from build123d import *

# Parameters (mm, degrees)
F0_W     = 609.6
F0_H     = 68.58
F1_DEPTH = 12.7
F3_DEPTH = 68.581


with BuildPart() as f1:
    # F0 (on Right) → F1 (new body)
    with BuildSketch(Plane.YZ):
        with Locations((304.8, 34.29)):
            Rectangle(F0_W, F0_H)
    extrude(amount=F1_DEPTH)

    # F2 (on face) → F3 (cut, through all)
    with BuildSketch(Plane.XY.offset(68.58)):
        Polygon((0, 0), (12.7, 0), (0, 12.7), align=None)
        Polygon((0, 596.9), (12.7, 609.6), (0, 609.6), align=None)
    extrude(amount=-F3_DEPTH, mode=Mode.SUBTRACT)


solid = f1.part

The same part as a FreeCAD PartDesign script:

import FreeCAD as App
import Part
import Sketcher
from FreeCAD import Vector
Q = App.Units.Quantity

doc = App.newDocument("Part")
body = doc.addObject("PartDesign::Body", "Body")

sketch1 = body.newObject("Sketcher::SketchObject", "Sketch")
sketch1.AttachmentSupport = (doc.getObject("YZ_Plane"), [""])
sketch1.MapMode = "FlatFace"
sketch1.addGeometry([
    Part.LineSegment(Vector(0, 69, 0), Vector(0, 0, 0)),
    Part.LineSegment(Vector(0, 0, 0), Vector(610, 0, 0)),
    Part.LineSegment(Vector(610, 0, 0), Vector(610, 69, 0)),
    Part.LineSegment(Vector(610, 69, 0), Vector(0, 69, 0)),
], False)
sketch1.addConstraint([
    Sketcher.Constraint("Coincident", 0, 2, 1, 1),
    Sketcher.Constraint("Coincident", 1, 2, 2, 1),
    Sketcher.Constraint("Coincident", 2, 2, 3, 1),
    Sketcher.Constraint("Coincident", 3, 2, 0, 1),
    Sketcher.Constraint("Vertical", 0),
    Sketcher.Constraint("Horizontal", 1),
    Sketcher.Constraint("Vertical", 2),
    Sketcher.Constraint("Horizontal", 3),
    Sketcher.Constraint("Coincident", 0, 2, -1, 1),
    Sketcher.Constraint("DistanceX", 1, 1, 1, 2, Q("24 in")),
    Sketcher.Constraint("DistanceY", 0, 2, 0, 1, Q("2.7 in")),
])
pad1 = body.newObject("PartDesign::Pad", "Pad")
pad1.Profile = sketch1
pad1.Length = Q("0.5 in")

sketch2 = body.newObject("Sketcher::SketchObject", "Sketch001")
sketch2.AttachmentSupport = (doc.getObject("XY_Plane"), [""])
sketch2.MapMode = "FlatFace"
sketch2.AttachmentOffset = App.Placement(Vector(0, 0, 2.7 * 25.4), App.Rotation())
sketch2.addGeometry([
    Part.LineSegment(Vector(0, 0, 0), Vector(13, 0, 0)),
    Part.LineSegment(Vector(13, 0, 0), Vector(0, 13, 0)),
    Part.LineSegment(Vector(0, 13, 0), Vector(0, 0, 0)),
    Part.LineSegment(Vector(0, 597, 0), Vector(13, 610, 0)),
    Part.LineSegment(Vector(13, 610, 0), Vector(0, 610, 0)),
    Part.LineSegment(Vector(0, 610, 0), Vector(0, 597, 0)),
], False)
sketch2.addConstraint([
    Sketcher.Constraint("Coincident", 0, 2, 1, 1),
    Sketcher.Constraint("Coincident", 1, 2, 2, 1),
    Sketcher.Constraint("Coincident", 2, 2, 0, 1),
    Sketcher.Constraint("Coincident", 3, 2, 4, 1),
    Sketcher.Constraint("Coincident", 4, 2, 5, 1),
    Sketcher.Constraint("Coincident", 5, 2, 3, 1),
    Sketcher.Constraint("Horizontal", 0),
    Sketcher.Constraint("Vertical", 2),
    Sketcher.Constraint("Horizontal", 4),
    Sketcher.Constraint("Vertical", 5),
    Sketcher.Constraint("Coincident", 2, 2, -1, 1),
    Sketcher.Constraint("PointOnObject", 4, 2, -2),
    Sketcher.Constraint("Perpendicular", 1, 3),
    Sketcher.Constraint("Vertical", 0, 2, 3, 2),
    Sketcher.Constraint("Equal", 4, 2),
    Sketcher.Constraint("DistanceX", 0, 1, 0, 2, Q("0.5 in")),
    Sketcher.Constraint("DistanceY", -1, 1, 3, 2, Q("24 in")),
])
pocket1 = body.newObject("PartDesign::Pocket", "Pocket")
pocket1.Profile = sketch2
pocket1.Type = "ThroughAll"

doc.recompute()
